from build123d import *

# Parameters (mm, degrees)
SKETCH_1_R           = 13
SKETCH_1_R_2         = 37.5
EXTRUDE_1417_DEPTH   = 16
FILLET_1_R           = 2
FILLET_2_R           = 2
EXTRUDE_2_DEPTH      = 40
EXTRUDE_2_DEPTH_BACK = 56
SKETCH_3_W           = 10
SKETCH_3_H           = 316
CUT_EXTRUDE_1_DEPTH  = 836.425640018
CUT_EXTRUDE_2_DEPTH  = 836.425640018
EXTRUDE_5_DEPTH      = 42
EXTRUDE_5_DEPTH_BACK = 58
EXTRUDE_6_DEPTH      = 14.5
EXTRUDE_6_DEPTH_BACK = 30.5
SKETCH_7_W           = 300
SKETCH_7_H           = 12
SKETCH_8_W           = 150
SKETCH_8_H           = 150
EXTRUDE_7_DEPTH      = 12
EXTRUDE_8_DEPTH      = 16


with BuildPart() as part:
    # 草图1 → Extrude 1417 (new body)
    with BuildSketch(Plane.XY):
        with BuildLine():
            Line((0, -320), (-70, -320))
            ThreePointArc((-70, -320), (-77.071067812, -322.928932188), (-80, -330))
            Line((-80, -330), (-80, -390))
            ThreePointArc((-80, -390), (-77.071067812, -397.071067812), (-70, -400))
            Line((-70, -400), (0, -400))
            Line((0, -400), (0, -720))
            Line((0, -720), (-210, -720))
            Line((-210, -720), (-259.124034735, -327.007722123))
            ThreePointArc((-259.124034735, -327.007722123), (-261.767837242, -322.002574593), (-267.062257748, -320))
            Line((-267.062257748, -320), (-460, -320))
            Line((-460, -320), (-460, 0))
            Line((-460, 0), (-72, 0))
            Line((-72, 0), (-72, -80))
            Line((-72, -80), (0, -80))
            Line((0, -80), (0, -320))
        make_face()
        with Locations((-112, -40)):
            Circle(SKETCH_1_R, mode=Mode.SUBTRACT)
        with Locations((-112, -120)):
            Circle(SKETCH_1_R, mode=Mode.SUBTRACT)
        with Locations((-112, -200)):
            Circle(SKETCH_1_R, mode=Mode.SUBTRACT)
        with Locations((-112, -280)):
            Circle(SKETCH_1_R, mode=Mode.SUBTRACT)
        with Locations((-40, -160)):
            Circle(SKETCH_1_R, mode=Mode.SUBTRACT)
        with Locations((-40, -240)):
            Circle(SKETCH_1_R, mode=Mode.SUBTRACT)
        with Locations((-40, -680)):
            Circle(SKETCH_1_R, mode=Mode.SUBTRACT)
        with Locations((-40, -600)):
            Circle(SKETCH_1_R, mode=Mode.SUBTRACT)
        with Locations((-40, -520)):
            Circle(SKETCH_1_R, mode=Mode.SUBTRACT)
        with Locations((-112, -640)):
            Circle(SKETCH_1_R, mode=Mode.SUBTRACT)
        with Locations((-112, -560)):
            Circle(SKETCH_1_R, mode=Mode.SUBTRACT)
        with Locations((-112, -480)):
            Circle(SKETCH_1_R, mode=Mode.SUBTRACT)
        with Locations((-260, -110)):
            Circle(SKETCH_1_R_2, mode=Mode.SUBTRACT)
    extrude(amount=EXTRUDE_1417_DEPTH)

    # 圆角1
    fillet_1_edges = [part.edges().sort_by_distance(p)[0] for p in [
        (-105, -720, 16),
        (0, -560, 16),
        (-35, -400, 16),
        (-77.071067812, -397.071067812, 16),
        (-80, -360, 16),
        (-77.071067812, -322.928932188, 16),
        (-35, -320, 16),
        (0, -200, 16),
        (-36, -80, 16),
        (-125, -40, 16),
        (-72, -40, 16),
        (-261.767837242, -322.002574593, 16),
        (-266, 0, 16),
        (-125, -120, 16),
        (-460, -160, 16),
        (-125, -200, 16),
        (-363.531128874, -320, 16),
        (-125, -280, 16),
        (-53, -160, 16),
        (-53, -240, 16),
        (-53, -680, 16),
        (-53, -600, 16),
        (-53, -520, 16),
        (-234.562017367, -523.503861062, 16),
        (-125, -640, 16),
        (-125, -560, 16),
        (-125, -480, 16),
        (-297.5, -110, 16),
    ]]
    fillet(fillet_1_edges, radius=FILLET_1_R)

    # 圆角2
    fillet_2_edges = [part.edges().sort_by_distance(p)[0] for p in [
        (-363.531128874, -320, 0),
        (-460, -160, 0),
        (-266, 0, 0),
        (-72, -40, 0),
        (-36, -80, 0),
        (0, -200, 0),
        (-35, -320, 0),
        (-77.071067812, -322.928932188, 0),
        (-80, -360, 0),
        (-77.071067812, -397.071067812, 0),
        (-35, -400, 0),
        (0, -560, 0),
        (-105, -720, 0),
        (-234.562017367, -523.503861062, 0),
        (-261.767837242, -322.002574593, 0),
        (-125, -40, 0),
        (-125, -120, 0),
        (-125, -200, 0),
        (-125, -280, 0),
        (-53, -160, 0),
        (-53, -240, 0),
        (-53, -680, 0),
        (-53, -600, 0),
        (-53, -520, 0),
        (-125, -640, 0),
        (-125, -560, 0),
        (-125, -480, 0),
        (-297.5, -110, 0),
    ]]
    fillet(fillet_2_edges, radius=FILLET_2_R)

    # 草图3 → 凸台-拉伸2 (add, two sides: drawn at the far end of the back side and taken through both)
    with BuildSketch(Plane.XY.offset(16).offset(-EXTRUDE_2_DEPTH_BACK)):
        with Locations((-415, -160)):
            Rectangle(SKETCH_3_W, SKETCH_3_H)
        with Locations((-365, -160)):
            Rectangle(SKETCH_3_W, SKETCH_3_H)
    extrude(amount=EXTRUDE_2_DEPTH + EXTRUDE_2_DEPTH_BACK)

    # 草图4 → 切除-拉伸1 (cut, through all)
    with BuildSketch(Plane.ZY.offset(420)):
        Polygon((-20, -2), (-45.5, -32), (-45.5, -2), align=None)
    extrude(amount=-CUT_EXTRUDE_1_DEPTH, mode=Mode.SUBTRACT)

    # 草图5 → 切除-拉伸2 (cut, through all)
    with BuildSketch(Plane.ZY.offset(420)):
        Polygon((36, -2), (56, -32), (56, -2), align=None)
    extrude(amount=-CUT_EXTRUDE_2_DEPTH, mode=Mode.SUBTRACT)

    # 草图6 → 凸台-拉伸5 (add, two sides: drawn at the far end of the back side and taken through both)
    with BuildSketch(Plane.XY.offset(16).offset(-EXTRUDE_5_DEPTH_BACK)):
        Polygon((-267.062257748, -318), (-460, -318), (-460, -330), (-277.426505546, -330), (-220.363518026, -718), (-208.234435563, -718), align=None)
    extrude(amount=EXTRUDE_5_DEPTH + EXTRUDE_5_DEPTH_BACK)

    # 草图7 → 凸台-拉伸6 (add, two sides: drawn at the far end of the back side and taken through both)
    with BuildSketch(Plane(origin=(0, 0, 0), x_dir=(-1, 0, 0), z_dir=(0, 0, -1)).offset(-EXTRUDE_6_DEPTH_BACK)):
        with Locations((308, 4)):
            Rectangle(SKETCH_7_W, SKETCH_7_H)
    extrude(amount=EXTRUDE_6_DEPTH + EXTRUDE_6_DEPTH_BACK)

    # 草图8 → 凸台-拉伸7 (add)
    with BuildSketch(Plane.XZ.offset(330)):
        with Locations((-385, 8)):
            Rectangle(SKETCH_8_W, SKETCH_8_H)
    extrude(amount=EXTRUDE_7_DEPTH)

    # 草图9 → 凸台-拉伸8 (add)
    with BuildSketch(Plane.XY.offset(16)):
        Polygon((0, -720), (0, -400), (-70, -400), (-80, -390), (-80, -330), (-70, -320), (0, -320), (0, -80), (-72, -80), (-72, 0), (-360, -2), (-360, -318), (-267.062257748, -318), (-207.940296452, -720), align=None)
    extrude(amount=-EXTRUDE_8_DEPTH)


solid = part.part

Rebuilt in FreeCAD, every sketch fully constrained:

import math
import FreeCAD as App
import Part
import Sketcher
from FreeCAD import Vector
Q = App.Units.Quantity


def edges_at(feature, points):
    """Names of the edges that pass closest to the given points."""
    edges = feature.Shape.Edges
    near = lambda p: min(range(len(edges)), key=lambda i: edges[i].distToShape(Part.Vertex(*p))[0])
    return sorted({f"Edge{near(p) + 1}" for p in points})

doc = App.newDocument("Part")
body = doc.addObject("PartDesign::Body", "Body")

# Sketch on XY plane
sketch1 = doc.addObject("Sketcher::SketchObject", "Sketch")
body.addObject(sketch1)
sketch1.AttachmentSupport = (doc.XY_Plane, [""])
sketch1.MapMode = "FlatFace"
sketch1.addGeometry([
    Part.LineSegment(Vector(-70, -320, 0), Vector(0, -320, 0)),  # 0
    Part.LineSegment(Vector(0, -320, 0), Vector(0, -80, 0)),  # 1
    Part.LineSegment(Vector(0, -80, 0), Vector(-72, -80, 0)),  # 2
    Part.LineSegment(Vector(-72, -80, 0), Vector(-72, 0, 0)),  # 3
    Part.LineSegment(Vector(-72, 0, 0), Vector(-460, 0, 0)),  # 4
    Part.LineSegment(Vector(-460, 0, 0), Vector(-460, -320, 0)),  # 5
    Part.LineSegment(Vector(-460, -320, 0), Vector(-267.062258, -320, 0)),  # 6
    Part.ArcOfCircle(Part.Circle(Vector(-267.062258, -328, 0), Vector(0, 0, 1), 8), math.radians(7.125016), math.radians(90)),  # 7
    Part.LineSegment(Vector(-259.124035, -327.007722, 0), Vector(-210, -720, 0)),  # 8
    Part.LineSegment(Vector(-210, -720, 0), Vector(0, -720, 0)),  # 9
    Part.LineSegment(Vector(0, -720, 0), Vector(0, -400, 0)),  # 10
    Part.LineSegment(Vector(0, -400, 0), Vector(-70, -400, 0)),  # 11
    Part.ArcOfCircle(Part.Circle(Vector(-70, -390, 0), Vector(0, 0, 1), 10), math.radians(180), math.radians(270)),  # 12
    Part.LineSegment(Vector(-80, -390, 0), Vector(-80, -330, 0)),  # 13
    Part.ArcOfCircle(Part.Circle(Vector(-70, -330, 0), Vector(0, 0, 1), 10), math.radians(90), math.radians(180)),  # 14
    Part.Circle(Vector(-40, -680, 0), Vector(0, 0, 1), 13),  # 15
    Part.Circle(Vector(-40, -600, 0), Vector(0, 0, 1), 13),  # 16
    Part.Circle(Vector(-112, -640, 0), Vector(0, 0, 1), 13),  # 17
    Part.Circle(Vector(-112, -560, 0), Vector(0, 0, 1), 13),  # 18
    Part.Circle(Vector(-40, -520, 0), Vector(0, 0, 1), 13),  # 19
    Part.Circle(Vector(-112, -480, 0), Vector(0, 0, 1), 13),  # 20
    Part.Circle(Vector(-40, -240, 0), Vector(0, 0, 1), 13),  # 21
    Part.Circle(Vector(-112, -280, 0), Vector(0, 0, 1), 13),  # 22
    Part.Circle(Vector(-112, -200, 0), Vector(0, 0, 1), 13),  # 23
    Part.Circle(Vector(-40, -160, 0), Vector(0, 0, 1), 13),  # 24
    Part.Circle(Vector(-112, -120, 0), Vector(0, 0, 1), 13),  # 25
    Part.Circle(Vector(-112, -40, 0), Vector(0, 0, 1), 13),  # 26
    Part.Circle(Vector(-260, -110, 0), Vector(0, 0, 1), 37.5),  # 27
], False)
sketch1.addConstraint([
    Sketcher.Constraint("Coincident", 0, 2, 1, 1),
    Sketcher.Constraint("Coincident", 1, 2, 2, 1),
    Sketcher.Constraint("Coincident", 2, 2, 3, 1),
    Sketcher.Constraint("Coincident", 3, 2, 4, 1),
    Sketcher.Constraint("Coincident", 4, 2, 5, 1),
    Sketcher.Constraint("Coincident", 5, 2, 6, 1),
    Sketcher.Constraint("Tangent", 6, 2, 7, 2),
    Sketcher.Constraint("Tangent", 7, 1, 8, 1),
    Sketcher.Constraint("Coincident", 8, 2, 9, 1),
    Sketcher.Constraint("Coincident", 9, 2, 10, 1),
    Sketcher.Constraint("Coincident", 10, 2, 11, 1),
    Sketcher.Constraint("Tangent", 11, 2, 12, 2),
    Sketcher.Constraint("Tangent", 12, 1, 13, 1),
    Sketcher.Constraint("Tangent", 13, 2, 14, 2),
    Sketcher.Constraint("Tangent", 14, 1, 0, 1),
    Sketcher.Constraint("Horizontal", 0),
    Sketcher.Constraint("Vertical", 1),
    Sketcher.Constraint("Horizontal", 2),
    Sketcher.Constraint("Vertical", 3),
    Sketcher.Constraint("Horizontal", 4),
    Sketcher.Constraint("Vertical", 5),
    Sketcher.Constraint("Horizontal", 6),
    Sketcher.Constraint("Horizontal", 9),
    Sketcher.Constraint("Vertical", 10),
    Sketcher.Constraint("Horizontal", 11),
    Sketcher.Constraint("Vertical", 13),
    Sketcher.Constraint("Equal", 12, 14),
    Sketcher.Constraint("Equal", 15, 16),
    Sketcher.Constraint("Equal", 16, 17),
    Sketcher.Constraint("Equal", 17, 18),
    Sketcher.Constraint("Equal", 18, 19),
    Sketcher.Constraint("Equal", 19, 20),
    Sketcher.Constraint("Equal", 20, 21),
    Sketcher.Constraint("Equal", 21, 22),
    Sketcher.Constraint("Equal", 22, 23),
    Sketcher.Constraint("Equal", 23, 24),
    Sketcher.Constraint("Equal", 24, 25),
    Sketcher.Constraint("Equal", 25, 26),
    Sketcher.Constraint("PointOnObject", 0, 2, -2),
    Sketcher.Constraint("PointOnObject", 3, 2, -1),
    Sketcher.Constraint("PointOnObject", 9, 2, -2),
    Sketcher.Constraint("Horizontal", 0, 2, 5, 2),
    Sketcher.Constraint("Vertical", 15, 3, 16, 3),
    Sketcher.Constraint("Vertical", 17, 3, 18, 3),
    Sketcher.Constraint("Vertical", 16, 3, 19, 3),
    Sketcher.Constraint("Vertical", 18, 3, 20, 3),
    Sketcher.Constraint("Vertical", 19, 3, 21, 3),
    Sketcher.Constraint("Vertical", 20, 3, 22, 3),
    Sketcher.Constraint("Vertical", 22, 3, 23, 3),
    Sketcher.Constraint("Vertical", 21, 3, 24, 3),
    Sketcher.Constraint("Vertical", 23, 3, 25, 3),
    Sketcher.Constraint("Vertical", 25, 3, 26, 3),
    Sketcher.Constraint("Equal", 5, 10),
    Sketcher.Constraint("Diameter", 15, Q("26 mm")),
    Sketcher.Constraint("Diameter", 27, Q("75 mm")),
    Sketcher.Constraint("Radius", 7, Q("8 mm")),
    Sketcher.Constraint("Radius", 12, Q("10 mm")),
    Sketcher.Constraint("DistanceX", 0, 1, 0, 2, Q("70 mm")),
    Sketcher.Constraint("DistanceX", 2, 2, 2, 1, Q("72 mm")),
    Sketcher.Constraint("DistanceX", 4, 2, 4, 1, Q("388 mm")),
    Sketcher.Constraint("DistanceX", 9, 1, 9, 2, Q("210 mm")),
    Sketcher.Constraint("DistanceY", 1, 1, 1, 2, Q("240 mm")),
    Sketcher.Constraint("DistanceY", 3, 1, 3, 2, Q("80 mm")),
    Sketcher.Constraint("DistanceY", 13, 1, 13, 2, Q("60 mm")),
    Sketcher.Constraint("DistanceX", 15, 3, -1, 1, Q("40 mm")),
    Sketcher.Constraint("DistanceY", 15, 3, -1, 1, Q("680 mm")),
    Sketcher.Constraint("DistanceY", 16, 3, -1, 1, Q("600 mm")),
    Sketcher.Constraint("DistanceX", 17, 3, -1, 1, Q("112 mm")),
    Sketcher.Constraint("DistanceY", 17, 3, -1, 1, Q("640 mm")),
    Sketcher.Constraint("DistanceY", 18, 3, -1, 1, Q("560 mm")),
    Sketcher.Constraint("DistanceY", 19, 3, -1, 1, Q("520 mm")),
    Sketcher.Constraint("DistanceY", 20, 3, -1, 1, Q("480 mm")),
    Sketcher.Constraint("DistanceY", 21, 3, -1, 1, Q("240 mm")),
    Sketcher.Constraint("DistanceY", 22, 3, -1, 1, Q("280 mm")),
    Sketcher.Constraint("DistanceY", 23, 3, -1, 1, Q("200 mm")),
    Sketcher.Constraint("DistanceY", 24, 3, -1, 1, Q("160 mm")),
    Sketcher.Constraint("DistanceY", 25, 3, -1, 1, Q("120 mm")),
    Sketcher.Constraint("DistanceY", 26, 3, -1, 1, Q("40 mm")),
    Sketcher.Constraint("DistanceX", 27, 3, -1, 1, Q("260 mm")),
    Sketcher.Constraint("DistanceY", 27, 3, -1, 1, Q("110 mm")),
    Sketcher.Constraint("Distance", 8, Q("396.05063 mm")),
])
pad1 = doc.addObject("PartDesign::Pad", "Pad")
body.addObject(pad1)
pad1.Profile = sketch1
pad1.Length = 16
doc.recompute()

fillet = doc.addObject("PartDesign::Fillet", "Fillet")
body.addObject(fillet)
fillet.Base = (pad1, edges_at(pad1, [
    (-105, -720, 16),
    (0, -560, 16),
    (-35, -400, 16),
    (-77.071, -397.071, 16),
    (-80, -360, 16),
    (-77.071, -322.929, 16),
    (-35, -320, 16),
    (0, -200, 16),
    (-36, -80, 16),
    (-125, -40, 16),
    (-72, -40, 16),
    (-261.768, -322.003, 16),
    (-266, 0, 16),
    (-125, -120, 16),
    (-460, -160, 16),
    (-125, -200, 16),
    (-363.531, -320, 16),
    (-125, -280, 16),
    (-53, -160, 16),
    (-53, -240, 16),
    (-53, -680, 16),
    (-53, -600, 16),
    (-53, -520, 16),
    (-234.562, -523.504, 16),
    (-125, -640, 16),
    (-125, -560, 16),
    (-125, -480, 16),
    (-297.5, -110, 16),
]))
fillet.Radius = 2
doc.recompute()

fillet2 = doc.addObject("PartDesign::Fillet", "Fillet001")
body.addObject(fillet2)
fillet2.Base = (fillet, edges_at(fillet, [
    (-363.531, -320, 0),
    (-460, -160, 0),
    (-266, 0, 0),
    (-72, -40, 0),
    (-36, -80, 0),
    (0, -200, 0),
    (-35, -320, 0),
    (-77.071, -322.929, 0),
    (-80, -360, 0),
    (-77.071, -397.071, 0),
    (-35, -400, 0),
    (0, -560, 0),
    (-105, -720, 0),
    (-234.562, -523.504, 0),
    (-261.768, -322.003, 0),
    (-125, -40, 0),
    (-125, -120, 0),
    (-125, -200, 0),
    (-125, -280, 0),
    (-53, -160, 0),
    (-53, -240, 0),
    (-53, -680, 0),
    (-53, -600, 0),
    (-53, -520, 0),
    (-125, -640, 0),
    (-125, -560, 0),
    (-125, -480, 0),
    (-297.5, -110, 0),
]))
fillet2.Radius = 2

# Sketch on XY plane
sketch2 = doc.addObject("Sketcher::SketchObject", "Sketch001")
body.addObject(sketch2)
sketch2.AttachmentSupport = (doc.XY_Plane, [""])
sketch2.MapMode = "FlatFace"
sketch2.AttachmentOffset = App.Placement(Vector(0, 0, 16), App.Rotation())
sketch2.addGeometry([
    Part.LineSegment(Vector(-420, -2, 0), Vector(-420, -318, 0)),  # 0
    Part.LineSegment(Vector(-420, -318, 0), Vector(-410, -318, 0)),  # 1
    Part.LineSegment(Vector(-410, -318, 0), Vector(-410, -2, 0)),  # 2
    Part.LineSegment(Vector(-410, -2, 0), Vector(-420, -2, 0)),  # 3
    Part.LineSegment(Vector(-370, -2, 0), Vector(-370, -318, 0)),  # 4
    Part.LineSegment(Vector(-370, -318, 0), Vector(-360, -318, 0)),  # 5
    Part.LineSegment(Vector(-360, -318, 0), Vector(-360, -2, 0)),  # 6
    Part.LineSegment(Vector(-360, -2, 0), Vector(-370, -2, 0)),  # 7
], False)
sketch2.addConstraint([
    Sketcher.Constraint("Coincident", 0, 2, 1, 1),
    Sketcher.Constraint("Coincident", 1, 2, 2, 1),
    Sketcher.Constraint("Coincident", 2, 2, 3, 1),
    Sketcher.Constraint("Coincident", 3, 2, 0, 1),
    Sketcher.Constraint("Coincident", 4, 2, 5, 1),
    Sketcher.Constraint("Coincident", 5, 2, 6, 1),
    Sketcher.Constraint("Coincident", 6, 2, 7, 1),
    Sketcher.Constraint("Coincident", 7, 2, 4, 1),
    Sketcher.Constraint("Vertical", 0),
    Sketcher.Constraint("Horizontal", 1),
    Sketcher.Constraint("Vertical", 2),
    Sketcher.Constraint("Horizontal", 3),
    Sketcher.Constraint("Vertical", 4),
    Sketcher.Constraint("Horizontal", 5),
    Sketcher.Constraint("Vertical", 6),
    Sketcher.Constraint("Horizontal", 7),
    Sketcher.Constraint("Horizontal", 1, 2, 4, 2),
    Sketcher.Constraint("Horizontal", 3, 2, 6, 2),
    Sketcher.Constraint("Equal", 3, 5),
    Sketcher.Constraint("DistanceX", 1, 1, 1, 2, Q("10 mm")),
    Sketcher.Constraint("DistanceY", 0, 2, 0, 1, Q("316 mm")),
    Sketcher.Constraint("DistanceX", 0, 2, -1, 1, Q("420 mm")),
    Sketcher.Constraint("DistanceY", 0, 2, -1, 1, Q("318 mm")),
    Sketcher.Constraint("DistanceX", 4, 2, -1, 1, Q("370 mm")),
])
pad2 = doc.addObject("PartDesign::Pad", "Pad001")
body.addObject(pad2)
pad2.Profile = sketch2
pad2.Type = "TwoLengths"
pad2.Length = 40
pad2.Length2 = 56

# Sketch on YZ plane
sketch3 = doc.addObject("Sketcher::SketchObject", "Sketch002")
body.addObject(sketch3)
sketch3.AttachmentSupport = (doc.YZ_Plane, [""])
sketch3.MapMode = "FlatFace"
sketch3.AttachmentOffset = App.Placement(Vector(0, 0, -420), App.Rotation())
sketch3.addGeometry([
    Part.LineSegment(Vector(-32, -45.5, 0), Vector(-2, -20, 0)),
    Part.LineSegment(Vector(-2, -20, 0), Vector(-2, -45.5, 0)),
    Part.LineSegment(Vector(-2, -45.5, 0), Vector(-32, -45.5, 0)),
], False)
sketch3.addConstraint([
    Sketcher.Constraint("Coincident", 0, 2, 1, 1),
    Sketcher.Constraint("Coincident", 1, 2, 2, 1),
    Sketcher.Constraint("Coincident", 2, 2, 0, 1),
    Sketcher.Constraint("Vertical", 1),
    Sketcher.Constraint("Horizontal", 2),
    Sketcher.Constraint("DistanceX", 2, 2, 2, 1, Q("30 mm")),
    Sketcher.Constraint("DistanceY", 1, 2, 1, 1, Q("25.5 mm")),
    Sketcher.Constraint("DistanceX", 0, 2, -1, 1, Q("2 mm")),
    Sketcher.Constraint("DistanceY", 0, 2, -1, 1, Q("20 mm")),
])
pocket1 = doc.addObject("PartDesign::Pocket", "Pocket")
body.addObject(pocket1)
pocket1.Profile = sketch3
pocket1.Type = "ThroughAll"
pocket1.Reversed = True

# Sketch on YZ plane
sketch4 = doc.addObject("Sketcher::SketchObject", "Sketch003")
body.addObject(sketch4)
sketch4.AttachmentSupport = (doc.YZ_Plane, [""])
sketch4.MapMode = "FlatFace"
sketch4.AttachmentOffset = App.Placement(Vector(0, 0, -420), App.Rotation())
sketch4.addGeometry([
    Part.LineSegment(Vector(-2, 36, 0), Vector(-32, 56, 0)),
    Part.LineSegment(Vector(-32, 56, 0), Vector(-2, 56, 0)),
    Part.LineSegment(Vector(-2, 56, 0), Vector(-2, 36, 0)),
], False)
sketch4.addConstraint([
    Sketcher.Constraint("Coincident", 0, 2, 1, 1),
    Sketcher.Constraint("Coincident", 1, 2, 2, 1),
    Sketcher.Constraint("Coincident", 2, 2, 0, 1),
    Sketcher.Constraint("Horizontal", 1),
    Sketcher.Constraint("Vertical", 2),
    Sketcher.Constraint("DistanceX", 1, 1, 1, 2, Q("30 mm")),
    Sketcher.Constraint("DistanceY", 2, 2, 2, 1, Q("20 mm")),
    Sketcher.Constraint("DistanceX", 0, 2, -1, 1, Q("32 mm")),
    Sketcher.Constraint("DistanceY", -1, 1, 0, 2, Q("56 mm")),
])
pocket2 = doc.addObject("PartDesign::Pocket", "Pocket001")
body.addObject(pocket2)
pocket2.Profile = sketch4
pocket2.Type = "ThroughAll"
pocket2.Reversed = True

# Sketch on XY plane
sketch5 = doc.addObject("Sketcher::SketchObject", "Sketch004")
body.addObject(sketch5)
sketch5.AttachmentSupport = (doc.XY_Plane, [""])
sketch5.MapMode = "FlatFace"
sketch5.AttachmentOffset = App.Placement(Vector(0, 0, 16), App.Rotation())
sketch5.addGeometry([
    Part.LineSegment(Vector(-267.062258, -318, 0), Vector(-460, -318, 0)),  # 0
    Part.LineSegment(Vector(-460, -318, 0), Vector(-460, -330, 0)),  # 1
    Part.LineSegment(Vector(-460, -330, 0), Vector(-277.426506, -330, 0)),  # 2
    Part.LineSegment(Vector(-277.426506, -330, 0), Vector(-220.363518, -718, 0)),  # 3
    Part.LineSegment(Vector(-220.363518, -718, 0), Vector(-208.234436, -718, 0)),  # 4
    Part.LineSegment(Vector(-208.234436, -718, 0), Vector(-267.062258, -318, 0)),  # 5
], False)
sketch5.addConstraint([
    Sketcher.Constraint("Coincident", 0, 2, 1, 1),
    Sketcher.Constraint("Coincident", 1, 2, 2, 1),
    Sketcher.Constraint("Coincident", 2, 2, 3, 1),
    Sketcher.Constraint("Coincident", 3, 2, 4, 1),
    Sketcher.Constraint("Coincident", 4, 2, 5, 1),
    Sketcher.Constraint("Coincident", 5, 2, 0, 1),
    Sketcher.Constraint("Horizontal", 0),
    Sketcher.Constraint("Vertical", 1),
    Sketcher.Constraint("Horizontal", 2),
    Sketcher.Constraint("Horizontal", 4),
    Sketcher.Constraint("Parallel", 3, 5),
    Sketcher.Constraint("DistanceY", 1, 2, 1, 1, Q("12 mm")),
    Sketcher.Constraint("DistanceX", 0, 2, -1, 1, Q("460 mm")),
    Sketcher.Constraint("DistanceY", 0, 2, -1, 1, Q("318 mm")),
    Sketcher.Constraint("DistanceY", 3, 2, -1, 1, Q("718 mm")),
    Sketcher.Constraint("Distance", 5, Q("404.302749 mm")),
    Sketcher.Constraint("DistanceX", 0, 2, 0, 1, Q("192.937742 mm")),
    Sketcher.Constraint("DistanceX", 2, 1, 2, 2, Q("182.573494 mm")),
])
pad3 = doc.addObject("PartDesign::Pad", "Pad002")
body.addObject(pad3)
pad3.Profile = sketch5
pad3.Type = "TwoLengths"
pad3.Length = 42
pad3.Length2 = 58

# Sketch on XY plane
sketch6 = doc.addObject("Sketcher::SketchObject", "Sketch005")
body.addObject(sketch6)
sketch6.AttachmentSupport = (doc.XY_Plane, [""])
sketch6.MapMode = "FlatFace"
sketch6.addGeometry([
    Part.LineSegment(Vector(-158, 10, 0), Vector(-158, -2, 0)),
    Part.LineSegment(Vector(-158, -2, 0), Vector(-458, -2, 0)),
    Part.LineSegment(Vector(-458, -2, 0), Vector(-458, 10, 0)),
    Part.LineSegment(Vector(-458, 10, 0), Vector(-158, 10, 0)),
], False)
sketch6.addConstraint([
    Sketcher.Constraint("Coincident", 0, 2, 1, 1),
    Sketcher.Constraint("Coincident", 1, 2, 2, 1),
    Sketcher.Constraint("Coincident", 2, 2, 3, 1),
    Sketcher.Constraint("Coincident", 3, 2, 0, 1),
    Sketcher.Constraint("Vertical", 0),
    Sketcher.Constraint("Horizontal", 1),
    Sketcher.Constraint("Vertical", 2),
    Sketcher.Constraint("Horizontal", 3),
    Sketcher.Constraint("DistanceX", 1, 2, 1, 1, Q("300 mm")),
    Sketcher.Constraint("DistanceY", 0, 2, 0, 1, Q("12 mm")),
    Sketcher.Constraint("DistanceX", 0, 2, -1, 1, Q("158 mm")),
    Sketcher.Constraint("DistanceY", 0, 2, -1, 1, Q("2 mm")),
])
pad4 = doc.addObject("PartDesign::Pad", "Pad003")
body.addObject(pad4)
pad4.Profile = sketch6
pad4.Type = "TwoLengths"
pad4.Length = 14.5
pad4.Length2 = 30.5
pad4.Reversed = True

# Sketch on XZ plane
sketch7 = doc.addObject("Sketcher::SketchObject", "Sketch006")
body.addObject(sketch7)
sketch7.AttachmentSupport = (doc.XZ_Plane, [""])
sketch7.MapMode = "FlatFace"
sketch7.AttachmentOffset = App.Placement(Vector(0, 0, 330), App.Rotation())
sketch7.addGeometry([
    Part.LineSegment(Vector(-460, 83, 0), Vector(-460, -67, 0)),
    Part.LineSegment(Vector(-460, -67, 0), Vector(-310, -67, 0)),
    Part.LineSegment(Vector(-310, -67, 0), Vector(-310, 83, 0)),
    Part.LineSegment(Vector(-310, 83, 0), Vector(-460, 83, 0)),
], False)
sketch7.addConstraint([
    Sketcher.Constraint("Coincident", 0, 2, 1, 1),
    Sketcher.Constraint("Coincident", 1, 2, 2, 1),
    Sketcher.Constraint("Coincident", 2, 2, 3, 1),
    Sketcher.Constraint("Coincident", 3, 2, 0, 1),
    Sketcher.Constraint("Vertical", 0),
    Sketcher.Constraint("Horizontal", 1),
    Sketcher.Constraint("Vertical", 2),
    Sketcher.Constraint("Horizontal", 3),
    Sketcher.Constraint("Equal", 3, 0),
    Sketcher.Constraint("DistanceX", 1, 1, 1, 2, Q("150 mm")),
    Sketcher.Constraint("DistanceX", 0, 2, -1, 1, Q("460 mm")),
    Sketcher.Constraint("DistanceY", 0, 2, -1, 1, Q("67 mm")),
])
pad5 = doc.addObject("PartDesign::Pad", "Pad004")
body.addObject(pad5)
pad5.Profile = sketch7
pad5.Length = 12

# Sketch on XY plane
sketch8 = doc.addObject("Sketcher::SketchObject", "Sketch007")
body.addObject(sketch8)
sketch8.AttachmentSupport = (doc.XY_Plane, [""])
sketch8.MapMode = "FlatFace"
sketch8.AttachmentOffset = App.Placement(Vector(0, 0, 16), App.Rotation())
sketch8.addGeometry([
    Part.LineSegment(Vector(0, -720, 0), Vector(0, -400, 0)),  # 0
    Part.LineSegment(Vector(0, -400, 0), Vector(-70, -400, 0)),  # 1
    Part.LineSegment(Vector(-70, -400, 0), Vector(-80, -390, 0)),  # 2
    Part.LineSegment(Vector(-80, -390, 0), Vector(-80, -330, 0)),  # 3
    Part.LineSegment(Vector(-80, -330, 0), Vector(-70, -320, 0)),  # 4
    Part.LineSegment(Vector(-70, -320, 0), Vector(0, -320, 0)),  # 5
    Part.LineSegment(Vector(0, -320, 0), Vector(0, -80, 0)),  # 6
    Part.LineSegment(Vector(0, -80, 0), Vector(-72, -80, 0)),  # 7
    Part.LineSegment(Vector(-72, -80, 0), Vector(-72, 0, 0)),  # 8
    Part.LineSegment(Vector(-72, 0, 0), Vector(-360, -2, 0)),  # 9
    Part.LineSegment(Vector(-360, -2, 0), Vector(-360, -318, 0)),  # 10
    Part.LineSegment(Vector(-360, -318, 0), Vector(-267.062258, -318, 0)),  # 11
    Part.LineSegment(Vector(-267.062258, -318, 0), Vector(-207.940296, -720, 0)),  # 12
    Part.LineSegment(Vector(-207.940296, -720, 0), Vector(0, -720, 0)),  # 13
], False)
sketch8.addConstraint([
    Sketcher.Constraint("Coincident", 0, 2, 1, 1),
    Sketcher.Constraint("Coincident", 1, 2, 2, 1),
    Sketcher.Constraint("Coincident", 2, 2, 3, 1),
    Sketcher.Constraint("Coincident", 3, 2, 4, 1),
    Sketcher.Constraint("Coincident", 4, 2, 5, 1),
    Sketcher.Constraint("Coincident", 5, 2, 6, 1),
    Sketcher.Constraint("Coincident", 6, 2, 7, 1),
    Sketcher.Constraint("Coincident", 7, 2, 8, 1),
    Sketcher.Constraint("Coincident", 8, 2, 9, 1),
    Sketcher.Constraint("Coincident", 9, 2, 10, 1),
    Sketcher.Constraint("Coincident", 10, 2, 11, 1),
    Sketcher.Constraint("Coincident", 11, 2, 12, 1),
    Sketcher.Constraint("Coincident", 12, 2, 13, 1),
    Sketcher.Constraint("Coincident", 13, 2, 0, 1),
    Sketcher.Constraint("Vertical", 0),
    Sketcher.Constraint("Horizontal", 1),
    Sketcher.Constraint("Vertical", 3),
    Sketcher.Constraint("Horizontal", 5),
    Sketcher.Constraint("Vertical", 6),
    Sketcher.Constraint("Horizontal", 7),
    Sketcher.Constraint("Vertical", 8),
    Sketcher.Constraint("Vertical", 10),
    Sketcher.Constraint("Horizontal", 11),
    Sketcher.Constraint("Horizontal", 13),
    Sketcher.Constraint("PointOnObject", 0, 2, -2),
    Sketcher.Constraint("PointOnObject", 5, 2, -2),
    Sketcher.Constraint("PointOnObject", 8, 2, -1),
    Sketcher.Constraint("Perpendicular", 2, 4),
    Sketcher.Constraint("Vertical", 1, 2, 4, 2),
    Sketcher.Constraint("Equal", 2, 4),
    Sketcher.Constraint("DistanceX", 1, 2, 1, 1, Q("70 mm")),
    Sketcher.Constraint("DistanceX", 7, 2, 7, 1, Q("72 mm")),
    Sketcher.Constraint("DistanceY", 0, 1, 0, 2, Q("320 mm")),
    Sketcher.Constraint("DistanceY", 3, 1, 3, 2, Q("60 mm")),
    Sketcher.Constraint("DistanceY", 6, 1, 6, 2, Q("240 mm")),
    Sketcher.Constraint("DistanceY", 8, 1, 8, 2, Q("80 mm")),
    Sketcher.Constraint("DistanceY", 10, 2, 10, 1, Q("316 mm")),
    Sketcher.Constraint("DistanceY", 0, 2, -1, 1, Q("400 mm")),
    Sketcher.Constraint("DistanceX", 9, 2, -1, 1, Q("360 mm")),
    Sketcher.Constraint("DistanceY", 9, 2, -1, 1, Q("2 mm")),
    Sketcher.Constraint("DistanceX", 11, 1, 11, 2, Q("92.937742 mm")),
    Sketcher.Constraint("DistanceX", 13, 1, 13, 2, Q("207.940296 mm")),
])
pad6 = doc.addObject("PartDesign::Pad", "Pad005")
body.addObject(pad6)
pad6.Profile = sketch8
pad6.Length = 16
pad6.Reversed = True

doc.recompute()
